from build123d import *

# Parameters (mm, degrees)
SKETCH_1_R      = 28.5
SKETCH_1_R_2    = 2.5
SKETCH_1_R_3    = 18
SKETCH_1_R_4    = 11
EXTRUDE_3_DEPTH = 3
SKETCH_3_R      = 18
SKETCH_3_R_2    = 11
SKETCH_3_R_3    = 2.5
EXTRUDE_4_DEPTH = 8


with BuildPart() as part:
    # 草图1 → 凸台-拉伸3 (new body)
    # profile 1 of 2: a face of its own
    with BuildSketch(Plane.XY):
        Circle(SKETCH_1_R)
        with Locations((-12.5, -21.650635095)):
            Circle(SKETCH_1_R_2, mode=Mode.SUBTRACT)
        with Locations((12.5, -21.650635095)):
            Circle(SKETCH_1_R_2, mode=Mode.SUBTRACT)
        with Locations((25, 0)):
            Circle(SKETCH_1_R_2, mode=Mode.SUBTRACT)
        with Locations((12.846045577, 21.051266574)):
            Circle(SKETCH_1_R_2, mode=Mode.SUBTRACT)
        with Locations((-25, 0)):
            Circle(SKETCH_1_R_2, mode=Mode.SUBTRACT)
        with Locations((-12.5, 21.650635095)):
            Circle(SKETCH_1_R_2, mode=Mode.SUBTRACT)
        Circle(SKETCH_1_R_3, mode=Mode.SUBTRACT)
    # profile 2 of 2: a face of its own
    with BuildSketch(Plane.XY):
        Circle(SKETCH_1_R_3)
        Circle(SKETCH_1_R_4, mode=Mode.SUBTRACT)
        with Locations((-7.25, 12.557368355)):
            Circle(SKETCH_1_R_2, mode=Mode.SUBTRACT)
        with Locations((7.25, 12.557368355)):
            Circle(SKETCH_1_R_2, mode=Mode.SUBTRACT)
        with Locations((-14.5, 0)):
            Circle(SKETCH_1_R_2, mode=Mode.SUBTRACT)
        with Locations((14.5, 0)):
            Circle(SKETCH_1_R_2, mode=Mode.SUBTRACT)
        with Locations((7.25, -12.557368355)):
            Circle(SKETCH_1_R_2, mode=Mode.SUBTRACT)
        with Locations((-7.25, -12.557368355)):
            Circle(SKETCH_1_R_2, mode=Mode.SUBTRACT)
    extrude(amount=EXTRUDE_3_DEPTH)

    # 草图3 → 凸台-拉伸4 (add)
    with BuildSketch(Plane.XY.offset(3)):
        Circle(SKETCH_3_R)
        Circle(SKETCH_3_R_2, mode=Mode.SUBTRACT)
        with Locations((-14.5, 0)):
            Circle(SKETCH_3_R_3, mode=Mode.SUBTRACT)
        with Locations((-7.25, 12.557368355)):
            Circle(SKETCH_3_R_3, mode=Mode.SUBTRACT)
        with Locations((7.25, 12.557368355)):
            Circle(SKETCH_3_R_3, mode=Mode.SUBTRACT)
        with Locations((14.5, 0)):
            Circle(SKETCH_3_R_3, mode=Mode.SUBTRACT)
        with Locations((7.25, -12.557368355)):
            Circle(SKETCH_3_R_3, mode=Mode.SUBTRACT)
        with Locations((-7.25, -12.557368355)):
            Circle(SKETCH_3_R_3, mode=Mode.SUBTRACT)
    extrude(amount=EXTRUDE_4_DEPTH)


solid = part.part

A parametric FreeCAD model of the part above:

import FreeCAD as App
import Part
import Sketcher

doc = App.newDocument("Part")
body = doc.addObject("PartDesign::Body", "Body")

# Sketch on XY plane
sketch1 = body.newObject("Sketcher::SketchObject", "Sketch")
sketch1.AttachmentSupport = (doc.getObject("XY_Plane"), [""])
sketch1.MapMode = "FlatFace"
sketch1.addGeometry(Part.Circle(App.Vector(0, 0, 0), App.Vector(0, 0, 1), 28.5), False)
sketch1.addGeometry(Part.Circle(App.Vector(-12.5, -21.7, 0), App.Vector(0, 0, 1), 2.5), False)
sketch1.addGeometry(Part.Circle(App.Vector(12.5, -21.7, 0), App.Vector(0, 0, 1), 2.5), False)
sketch1.addGeometry(Part.Circle(App.Vector(-25, 0, 0), App.Vector(0, 0, 1), 2.5), False)
sketch1.addGeometry(Part.Circle(App.Vector(-12.5, 21.7, 0), App.Vector(0, 0, 1), 2.5), False)
sketch1.addGeometry(Part.Circle(App.Vector(25, 0, 0), App.Vector(0, 0, 1), 2.5), False)
sketch1.addGeometry(Part.Circle(App.Vector(12.8, 21.1, 0), App.Vector(0, 0, 1), 2.5), False)
sketch1.addGeometry(Part.Circle(App.Vector(7.2, 12.6, 0), App.Vector(0, 0, 1), 2.5), False)
sketch1.addGeometry(Part.Circle(App.Vector(-7.2, -12.6, 0), App.Vector(0, 0, 1), 2.5), False)
sketch1.addGeometry(Part.Circle(App.Vector(7.2, -12.6, 0), App.Vector(0, 0, 1), 2.5), False)
sketch1.addGeometry(Part.Circle(App.Vector(-14.5, 0, 0), App.Vector(0, 0, 1), 2.5), False)
sketch1.addGeometry(Part.Circle(App.Vector(-7.2, 12.6, 0), App.Vector(0, 0, 1), 2.5), False)
sketch1.addGeometry(Part.Circle(App.Vector(0, 0, 0), App.Vector(0, 0, 1), 11), False)
sketch1.addGeometry(Part.Circle(App.Vector(14.5, 0, 0), App.Vector(0, 0, 1), 2.5), False)
sketch1.addConstraint(Sketcher.Constraint("Coincident", 0, 3, -1, 1))
sketch1.addConstraint(Sketcher.Constraint("Coincident", 12, 3, -1, 1))
sketch1.addConstraint(Sketcher.Constraint("Equal", 1, 2))
sketch1.addConstraint(Sketcher.Constraint("Equal", 2, 3))
sketch1.addConstraint(Sketcher.Constraint("Equal", 3, 4))
sketch1.addConstraint(Sketcher.Constraint("Equal", 4, 5))
sketch1.addConstraint(Sketcher.Constraint("Equal", 5, 6))
sketch1.addConstraint(Sketcher.Constraint("Equal", 6, 7))
sketch1.addConstraint(Sketcher.Constraint("Equal", 7, 8))
sketch1.addConstraint(Sketcher.Constraint("Equal", 8, 9))
sketch1.addConstraint(Sketcher.Constraint("Equal", 9, 10))
sketch1.addConstraint(Sketcher.Constraint("Equal", 10, 11))
sketch1.addConstraint(Sketcher.Constraint("Equal", 11, 13))
sketch1.addConstraint(Sketcher.Constraint("Symmetric", 2, 3, 4, 3, -1, 1))
sketch1.addConstraint(Sketcher.Constraint("Symmetric", 3, 3, 5, 3, -1, 1))
sketch1.addConstraint(Sketcher.Constraint("Symmetric", 7, 3, 8, 3, -1, 1))
sketch1.addConstraint(Sketcher.Constraint("Symmetric", 9, 3, 11, 3, -1, 1))
sketch1.addConstraint(Sketcher.Constraint("Symmetric", 10, 3, 13, 3, -1, 1))
sketch1.addConstraint(Sketcher.Constraint("Symmetric", 1, 3, 2, 3, -2))
sketch1.addConstraint(Sketcher.Constraint("Symmetric", 8, 3, 9, 3, -2))
sketch1.addConstraint(Sketcher.Constraint("PointOnObject", 3, 3, -1))
sketch1.addConstraint(Sketcher.Constraint("PointOnObject", 10, 3, -1))
sketch1.addConstraint(Sketcher.Constraint("Diameter", 0, 57.0))
sketch1.addConstraint(Sketcher.Constraint("Diameter", 1, 5.0))
sketch1.addConstraint(Sketcher.Constraint("Diameter", 12, 22.0))
sketch1.addConstraint(Sketcher.Constraint("DistanceX", 3, 3, -1, 1, 25.0))
sketch1.addConstraint(Sketcher.Constraint("DistanceX", 1, 3, 2, 3, 25.0))
sketch1.addConstraint(Sketcher.Constraint("DistanceX", 10, 3, 1, 3, 2.0))
sketch1.addConstraint(Sketcher.Constraint("DistanceX", 8, 3, 7, 3, 14.5))
sketch1.addConstraint(Sketcher.Constraint("DistanceY", 2, 3, 6, 3, 42.701902))
sketch1.addConstraint(Sketcher.Constraint("DistanceY", 7, 3, 6, 3, 8.493898))
sketch1.addConstraint(Sketcher.Constraint("DistanceY", -1, 1, 7, 3, 12.557368))
sketch1.addConstraint(Sketcher.Constraint("DistanceX", -1, 1, 6, 3, 12.846046))
pad1 = body.newObject("PartDesign::Pad", "Pad")
pad1.Profile = sketch1
pad1.Length = 3

# Sketch on XY plane
sketch2 = body.newObject("Sketcher::SketchObject", "Sketch001")
sketch2.AttachmentSupport = (doc.getObject("XY_Plane"), [""])
sketch2.MapMode = "FlatFace"
sketch2.AttachmentOffset = App.Placement(App.Vector(0, 0, 3), App.Rotation())
sketch2.addGeometry(Part.Circle(App.Vector(0, 0, 0), App.Vector(0, 0, 1), 18), False)
sketch2.addGeometry(Part.Circle(App.Vector(-7.2, -12.6, 0), App.Vector(0, 0, 1), 2.5), False)
sketch2.addGeometry(Part.Circle(App.Vector(7.2, -12.6, 0), App.Vector(0, 0, 1), 2.5), False)
sketch2.addGeometry(Part.Circle(App.Vector(-14.5, 0, 0), App.Vector(0, 0, 1), 2.5), False)
sketch2.addGeometry(Part.Circle(App.Vector(-7.2, 12.6, 0), App.Vector(0, 0, 1), 2.5), False)
sketch2.addGeometry(Part.Circle(App.Vector(0, 0, 0), App.Vector(0, 0, 1), 11), False)
sketch2.addGeometry(Part.Circle(App.Vector(14.5, 0, 0), App.Vector(0, 0, 1), 2.5), False)
sketch2.addGeometry(Part.Circle(App.Vector(7.2, 12.6, 0), App.Vector(0, 0, 1), 2.5), False)
sketch2.addConstraint(Sketcher.Constraint("Coincident", 0, 3, -1, 1))
sketch2.addConstraint(Sketcher.Constraint("Coincident", 5, 3, -1, 1))
sketch2.addConstraint(Sketcher.Constraint("Equal", 1, 2))
sketch2.addConstraint(Sketcher.Constraint("Equal", 2, 3))
sketch2.addConstraint(Sketcher.Constraint("Equal", 3, 4))
sketch2.addConstraint(Sketcher.Constraint("Equal", 4, 6))
sketch2.addConstraint(Sketcher.Constraint("Equal", 6, 7))
sketch2.addConstraint(Sketcher.Constraint("Symmetric", 2, 3, 4, 3, -1, 1))
sketch2.addConstraint(Sketcher.Constraint("Symmetric", 3, 3, 6, 3, -1, 1))
sketch2.addConstraint(Sketcher.Constraint("Symmetric", 1, 3, 7, 3, -1, 1))
sketch2.addConstraint(Sketcher.Constraint("Symmetric", 1, 3, 2, 3, -2))
sketch2.addConstraint(Sketcher.Constraint("PointOnObject", 3, 3, -1))
sketch2.addConstraint(Sketcher.Constraint("Diameter", 0, 36.0))
sketch2.addConstraint(Sketcher.Constraint("Diameter", 1, 5.0))
sketch2.addConstraint(Sketcher.Constraint("Diameter", 5, 22.0))
sketch2.addConstraint(Sketcher.Constraint("DistanceX", 3, 3, -1, 1, 14.5))
sketch2.addConstraint(Sketcher.Constraint("DistanceX", 1, 3, 2, 3, 14.5))
sketch2.addConstraint(Sketcher.Constraint("DistanceY", 1, 3, -1, 1, 12.557368))
pad2 = body.newObject("PartDesign::Pad", "Pad001")
pad2.Profile = sketch2
pad2.Length = 8

doc.recompute()
